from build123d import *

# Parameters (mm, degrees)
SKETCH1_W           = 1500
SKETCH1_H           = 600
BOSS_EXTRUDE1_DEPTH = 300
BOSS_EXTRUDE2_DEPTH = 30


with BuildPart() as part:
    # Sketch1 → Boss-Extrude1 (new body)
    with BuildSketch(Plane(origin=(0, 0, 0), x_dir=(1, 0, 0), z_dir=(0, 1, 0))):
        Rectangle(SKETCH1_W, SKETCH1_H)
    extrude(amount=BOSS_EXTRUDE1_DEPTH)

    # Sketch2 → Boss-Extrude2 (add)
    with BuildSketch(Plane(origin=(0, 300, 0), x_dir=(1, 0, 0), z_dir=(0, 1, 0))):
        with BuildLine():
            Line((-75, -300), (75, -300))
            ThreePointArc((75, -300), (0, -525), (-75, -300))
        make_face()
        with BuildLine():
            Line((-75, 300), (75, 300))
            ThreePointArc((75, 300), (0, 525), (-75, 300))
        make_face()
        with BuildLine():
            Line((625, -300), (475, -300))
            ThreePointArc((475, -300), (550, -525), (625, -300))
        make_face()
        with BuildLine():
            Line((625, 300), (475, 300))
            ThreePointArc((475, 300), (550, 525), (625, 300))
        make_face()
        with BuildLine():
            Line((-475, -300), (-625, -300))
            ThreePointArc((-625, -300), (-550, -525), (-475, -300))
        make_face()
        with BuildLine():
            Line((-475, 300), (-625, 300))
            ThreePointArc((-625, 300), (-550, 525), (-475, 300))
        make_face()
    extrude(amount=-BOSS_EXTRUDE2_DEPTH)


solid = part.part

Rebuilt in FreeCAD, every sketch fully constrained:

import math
import FreeCAD as App
import Part
import Sketcher
Q = App.Units.Quantity

doc = App.newDocument("Part")
body = doc.addObject("PartDesign::Body", "Body")

# Sketch on XZ plane
sketch1 = body.newObject("Sketcher::SketchObject", "Sketch")
sketch1.AttachmentSupport = (doc.getObject("XZ_Plane"), [""])
sketch1.MapMode = "FlatFace"
sketch1.addGeometry(Part.LineSegment(App.Vector(-750, -300, 0), App.Vector(-750, 300, 0)), False)
sketch1.addGeometry(Part.LineSegment(App.Vector(-750, 300, 0), App.Vector(750, 300, 0)), False)
sketch1.addGeometry(Part.LineSegment(App.Vector(750, 300, 0), App.Vector(750, -300, 0)), False)
sketch1.addGeometry(Part.LineSegment(App.Vector(750, -300, 0), App.Vector(-750, -300, 0)), False)
sketch1.addConstraint(Sketcher.Constraint("Coincident", 0, 2, 1, 1))
sketch1.addConstraint(Sketcher.Constraint("Coincident", 1, 2, 2, 1))
sketch1.addConstraint(Sketcher.Constraint("Coincident", 2, 2, 3, 1))
sketch1.addConstraint(Sketcher.Constraint("Coincident", 3, 2, 0, 1))
sketch1.addConstraint(Sketcher.Constraint("Vertical", 0))
sketch1.addConstraint(Sketcher.Constraint("Horizontal", 1))
sketch1.addConstraint(Sketcher.Constraint("Vertical", 2))
sketch1.addConstraint(Sketcher.Constraint("Horizontal", 3))
sketch1.addConstraint(Sketcher.Constraint("Symmetric", 0, 2, 2, 2, -1, 1))
sketch1.addConstraint(Sketcher.Constraint("DistanceX", 1, 1, 1, 2, Q("1500 mm")))
sketch1.addConstraint(Sketcher.Constraint("DistanceY", 0, 1, 0, 2, Q("600 mm")))
pad1 = body.newObject("PartDesign::Pad", "Pad")
pad1.Profile = sketch1
pad1.Length = 300
pad1.Reversed = True

# Sketch on XZ plane
sketch2 = body.newObject("Sketcher::SketchObject", "Sketch001")
sketch2.AttachmentSupport = (doc.getObject("XZ_Plane"), [""])
sketch2.MapMode = "FlatFace"
sketch2.AttachmentOffset = App.Placement(App.Vector(0, 0, -300), App.Rotation())
sketch2.addGeometry(Part.LineSegment(App.Vector(75, 300, 0), App.Vector(-75, 300, 0)), False)
sketch2.addGeometry(Part.ArcOfCircle(Part.Circle(App.Vector(0, 400, 0), App.Vector(0, 0, 1), 125), math.radians(-53), math.radians(233)), False)
sketch2.addGeometry(Part.LineSegment(App.Vector(-75, -300, 0), App.Vector(75, -300, 0)), False)
sketch2.addGeometry(Part.ArcOfCircle(Part.Circle(App.Vector(0, -400, 0), App.Vector(0, 0, 1), 125), math.radians(127), math.radians(413)), False)
sketch2.addGeometry(Part.LineSegment(App.Vector(625, 300, 0), App.Vector(475, 300, 0)), False)
sketch2.addGeometry(Part.ArcOfCircle(Part.Circle(App.Vector(550, 400, 0), App.Vector(0, 0, 1), 125), math.radians(-53), math.radians(233)), False)
sketch2.addGeometry(Part.LineSegment(App.Vector(475, -300, 0), App.Vector(625, -300, 0)), False)
sketch2.addGeometry(Part.ArcOfCircle(Part.Circle(App.Vector(550, -400, 0), App.Vector(0, 0, 1), 125), math.radians(127), math.radians(413)), False)
sketch2.addGeometry(Part.LineSegment(App.Vector(-475, 300, 0), App.Vector(-625, 300, 0)), False)
sketch2.addGeometry(Part.ArcOfCircle(Part.Circle(App.Vector(-550, 400, 0), App.Vector(0, 0, 1), 125), math.radians(-53), math.radians(233)), False)
sketch2.addGeometry(Part.LineSegment(App.Vector(-625, -300, 0), App.Vector(-475, -300, 0)), False)
sketch2.addGeometry(Part.ArcOfCircle(Part.Circle(App.Vector(-550, -400, 0), App.Vector(0, 0, 1), 125), math.radians(127), math.radians(413)), False)
sketch2.addConstraint(Sketcher.Constraint("Coincident", 0, 1, 1, 1))
sketch2.addConstraint(Sketcher.Constraint("Coincident", 1, 2, 0, 2))
sketch2.addConstraint(Sketcher.Constraint("Coincident", 2, 1, 3, 1))
sketch2.addConstraint(Sketcher.Constraint("Coincident", 3, 2, 2, 2))
sketch2.addConstraint(Sketcher.Constraint("Coincident", 4, 1, 5, 1))
sketch2.addConstraint(Sketcher.Constraint("Coincident", 5, 2, 4, 2))
sketch2.addConstraint(Sketcher.Constraint("Coincident", 6, 1, 7, 1))
sketch2.addConstraint(Sketcher.Constraint("Coincident", 7, 2, 6, 2))
sketch2.addConstraint(Sketcher.Constraint("Coincident", 8, 1, 9, 1))
sketch2.addConstraint(Sketcher.Constraint("Coincident", 9, 2, 8, 2))
sketch2.addConstraint(Sketcher.Constraint("Coincident", 10, 1, 11, 1))
sketch2.addConstraint(Sketcher.Constraint("Coincident", 11, 2, 10, 2))
sketch2.addConstraint(Sketcher.Constraint("Horizontal", 0))
sketch2.addConstraint(Sketcher.Constraint("Horizontal", 2))
sketch2.addConstraint(Sketcher.Constraint("Horizontal", 4))
sketch2.addConstraint(Sketcher.Constraint("Horizontal", 6))
sketch2.addConstraint(Sketcher.Constraint("Horizontal", 8))
sketch2.addConstraint(Sketcher.Constraint("Horizontal", 10))
sketch2.addConstraint(Sketcher.Constraint("Equal", 1, 3))
sketch2.addConstraint(Sketcher.Constraint("Equal", 3, 5))
sketch2.addConstraint(Sketcher.Constraint("Equal", 5, 7))
sketch2.addConstraint(Sketcher.Constraint("Equal", 7, 9))
sketch2.addConstraint(Sketcher.Constraint("Equal", 9, 11))
sketch2.addConstraint(Sketcher.Constraint("Symmetric", 1, 3, 3, 3, -1, 1))
sketch2.addConstraint(Sketcher.Constraint("Symmetric", 7, 3, 9, 3, -1, 1))
sketch2.addConstraint(Sketcher.Constraint("Symmetric", 5, 3, 11, 3, -1, 1))
sketch2.addConstraint(Sketcher.Constraint("Symmetric", 5, 3, 9, 3, -2))
sketch2.addConstraint(Sketcher.Constraint("Symmetric", 1, 2, 2, 1, -1))
sketch2.addConstraint(Sketcher.Constraint("Horizontal", 1, 3, 5, 3))
sketch2.addConstraint(Sketcher.Constraint("Horizontal", 1, 2, 4, 1))
sketch2.addConstraint(Sketcher.Constraint("Horizontal", 3, 2, 6, 1))
sketch2.addConstraint(Sketcher.Constraint("Horizontal", 5, 2, 8, 1))
sketch2.addConstraint(Sketcher.Constraint("Horizontal", 7, 2, 10, 1))
sketch2.addConstraint(Sketcher.Constraint("Radius", 1, Q("125 mm")))
sketch2.addConstraint(Sketcher.Constraint("DistanceX", 0, 2, 0, 1, Q("150 mm")))
sketch2.addConstraint(Sketcher.Constraint("DistanceY", -1, 1, 1, 3, Q("400 mm")))
sketch2.addConstraint(Sketcher.Constraint("DistanceX", -1, 1, 5, 3, Q("550 mm")))
pad2 = body.newObject("PartDesign::Pad", "Pad001")
pad2.Profile = sketch2
pad2.Length = 30

doc.recompute()
